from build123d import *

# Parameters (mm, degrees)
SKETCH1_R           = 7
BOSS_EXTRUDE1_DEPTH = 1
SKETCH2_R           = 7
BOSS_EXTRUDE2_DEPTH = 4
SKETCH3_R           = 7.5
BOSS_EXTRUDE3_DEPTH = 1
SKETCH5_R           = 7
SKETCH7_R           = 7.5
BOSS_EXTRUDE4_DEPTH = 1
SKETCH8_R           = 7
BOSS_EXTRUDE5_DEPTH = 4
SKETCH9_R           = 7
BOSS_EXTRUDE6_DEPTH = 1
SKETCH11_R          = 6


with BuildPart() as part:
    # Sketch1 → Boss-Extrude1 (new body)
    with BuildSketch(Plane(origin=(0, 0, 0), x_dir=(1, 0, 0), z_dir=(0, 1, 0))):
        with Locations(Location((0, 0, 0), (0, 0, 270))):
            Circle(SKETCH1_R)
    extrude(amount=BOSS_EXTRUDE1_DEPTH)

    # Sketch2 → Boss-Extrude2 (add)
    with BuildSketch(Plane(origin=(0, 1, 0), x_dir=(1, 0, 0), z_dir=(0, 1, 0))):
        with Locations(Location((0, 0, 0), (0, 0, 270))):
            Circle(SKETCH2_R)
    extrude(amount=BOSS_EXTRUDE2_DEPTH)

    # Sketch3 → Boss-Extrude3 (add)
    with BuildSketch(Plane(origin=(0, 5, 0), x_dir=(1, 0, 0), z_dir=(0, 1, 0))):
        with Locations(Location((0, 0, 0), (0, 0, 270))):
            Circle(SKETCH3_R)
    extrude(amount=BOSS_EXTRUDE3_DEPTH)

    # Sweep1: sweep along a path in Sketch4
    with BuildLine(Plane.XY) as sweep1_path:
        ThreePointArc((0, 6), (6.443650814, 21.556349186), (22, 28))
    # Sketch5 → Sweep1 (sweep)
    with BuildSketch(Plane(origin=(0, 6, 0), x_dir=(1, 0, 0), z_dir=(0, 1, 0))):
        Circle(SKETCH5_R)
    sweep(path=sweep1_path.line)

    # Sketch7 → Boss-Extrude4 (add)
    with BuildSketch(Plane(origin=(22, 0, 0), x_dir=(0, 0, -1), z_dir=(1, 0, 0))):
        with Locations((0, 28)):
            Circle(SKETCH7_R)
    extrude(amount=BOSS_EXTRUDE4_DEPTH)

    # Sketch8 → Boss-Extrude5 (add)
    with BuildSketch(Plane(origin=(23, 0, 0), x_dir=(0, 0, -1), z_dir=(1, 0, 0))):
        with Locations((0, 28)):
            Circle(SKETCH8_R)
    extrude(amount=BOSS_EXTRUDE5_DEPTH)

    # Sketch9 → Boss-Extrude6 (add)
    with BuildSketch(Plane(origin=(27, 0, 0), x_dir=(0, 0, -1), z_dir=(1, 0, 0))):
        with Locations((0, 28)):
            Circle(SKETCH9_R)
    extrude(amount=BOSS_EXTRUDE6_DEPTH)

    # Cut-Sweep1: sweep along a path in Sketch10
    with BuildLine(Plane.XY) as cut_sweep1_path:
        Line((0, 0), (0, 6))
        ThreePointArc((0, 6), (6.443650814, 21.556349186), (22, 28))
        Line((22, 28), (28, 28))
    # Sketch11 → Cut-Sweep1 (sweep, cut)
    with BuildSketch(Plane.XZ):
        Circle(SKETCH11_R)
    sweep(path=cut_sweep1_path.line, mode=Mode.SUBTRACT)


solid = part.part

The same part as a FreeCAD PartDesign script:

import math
import FreeCAD as App
import Part
import Sketcher
Q = App.Units.Quantity

doc = App.newDocument("Part")
body = doc.addObject("PartDesign::Body", "Body")

sketch1 = body.newObject("Sketcher::SketchObject", "Sketch")
sketch1.AttachmentSupport = (doc.getObject("XZ_Plane"), [""])
sketch1.MapMode = "FlatFace"
sketch1.addGeometry(Part.Circle(App.Vector(0, 0, 0), App.Vector(0, 0, 1), 7), False)
sketch1.addConstraint([
    Sketcher.Constraint("Coincident", 0, 3, -1, 1),
    Sketcher.Constraint("Diameter", 0, Q("14 mm")),
])
pad1 = body.newObject("PartDesign::Pad", "Pad")
pad1.Profile = sketch1
pad1.Length = 1
pad1.Reversed = True

sketch2 = body.newObject("Sketcher::SketchObject", "Sketch001")
sketch2.AttachmentSupport = (doc.getObject("XZ_Plane"), [""])
sketch2.MapMode = "FlatFace"
sketch2.AttachmentOffset = App.Placement(App.Vector(0, 0, -1), App.Rotation())
sketch2.addGeometry(Part.Circle(App.Vector(0, 0, 0), App.Vector(0, 0, 1), 7), False)
sketch2.addConstraint([
    Sketcher.Constraint("Coincident", 0, 3, -1, 1),
    Sketcher.Constraint("Diameter", 0, Q("14 mm")),
])
pad2 = body.newObject("PartDesign::Pad", "Pad001")
pad2.Profile = sketch2
pad2.Length = 4
pad2.Reversed = True

sketch3 = body.newObject("Sketcher::SketchObject", "Sketch002")
sketch3.AttachmentSupport = (doc.getObject("XZ_Plane"), [""])
sketch3.MapMode = "FlatFace"
sketch3.AttachmentOffset = App.Placement(App.Vector(0, 0, -5), App.Rotation())
sketch3.addGeometry(Part.Circle(App.Vector(0, 0, 0), App.Vector(0, 0, 1), 7.5), False)
sketch3.addConstraint([
    Sketcher.Constraint("Coincident", 0, 3, -1, 1),
    Sketcher.Constraint("Diameter", 0, Q("15 mm")),
])
pad3 = body.newObject("PartDesign::Pad", "Pad002")
pad3.Profile = sketch3
pad3.Length = 1
pad3.Reversed = True

sketch4 = body.newObject("Sketcher::SketchObject", "Sketch003")
sketch4.AttachmentSupport = (doc.getObject("XZ_Plane"), [""])
sketch4.MapMode = "FlatFace"
sketch4.AttachmentOffset = App.Placement(App.Vector(0, 0, -6), App.Rotation())
sketch4.addGeometry(Part.Circle(App.Vector(0, 0, 0), App.Vector(0, 0, 1), 7), False)
sketch4.addConstraint([
    Sketcher.Constraint("Coincident", 0, 3, -1, 1),
    Sketcher.Constraint("Diameter", 0, Q("14 mm")),
])

sketch5 = body.newObject("Sketcher::SketchObject", "Sketch004")
sketch5.AttachmentSupport = (doc.getObject("XY_Plane"), [""])
sketch5.MapMode = "FlatFace"
sketch5.addGeometry(Part.ArcOfCircle(Part.Circle(App.Vector(22, 6, 0), App.Vector(0, 0, 1), 22), math.radians(90), math.radians(180)), False)
sketch5.addConstraint([
    Sketcher.Constraint("PointOnObject", 0, 2, -2),
    Sketcher.Constraint("Radius", 0, Q("22 mm")),
    Sketcher.Constraint("DistanceY", -1, 1, 0, 3, Q("6 mm")),
    Sketcher.Constraint("DistanceX", -1, 1, 0, 1, Q("22 mm")),
    Sketcher.Constraint("DistanceY", -1, 1, 0, 2, Q("6 mm")),
])
doc.recompute()

additivepipe = body.newObject("PartDesign::AdditivePipe", "AdditivePipe")
additivepipe.Profile = sketch4
additivepipe.Spine = (sketch5, ["Edge1"])

sketch6 = body.newObject("Sketcher::SketchObject", "Sketch005")
sketch6.AttachmentSupport = (doc.getObject("YZ_Plane"), [""])
sketch6.MapMode = "FlatFace"
sketch6.AttachmentOffset = App.Placement(App.Vector(0, 0, 22), App.Rotation())
sketch6.addGeometry(Part.Circle(App.Vector(28, 0, 0), App.Vector(0, 0, 1), 7.5), False)
sketch6.addConstraint([
    Sketcher.Constraint("PointOnObject", 0, 3, -1),
    Sketcher.Constraint("Diameter", 0, Q("15 mm")),
    Sketcher.Constraint("DistanceX", -1, 1, 0, 3, Q("28 mm")),
])
pad4 = body.newObject("PartDesign::Pad", "Pad003")
pad4.Profile = sketch6
pad4.Length = 1

sketch7 = body.newObject("Sketcher::SketchObject", "Sketch006")
sketch7.AttachmentSupport = (doc.getObject("YZ_Plane"), [""])
sketch7.MapMode = "FlatFace"
sketch7.AttachmentOffset = App.Placement(App.Vector(0, 0, 23), App.Rotation())
sketch7.addGeometry(Part.Circle(App.Vector(28, 0, 0), App.Vector(0, 0, 1), 7), False)
sketch7.addConstraint([
    Sketcher.Constraint("PointOnObject", 0, 3, -1),
    Sketcher.Constraint("Diameter", 0, Q("14 mm")),
    Sketcher.Constraint("DistanceX", -1, 1, 0, 3, Q("28 mm")),
])
pad5 = body.newObject("PartDesign::Pad", "Pad004")
pad5.Profile = sketch7
pad5.Length = 4

sketch8 = body.newObject("Sketcher::SketchObject", "Sketch007")
sketch8.AttachmentSupport = (doc.getObject("YZ_Plane"), [""])
sketch8.MapMode = "FlatFace"
sketch8.AttachmentOffset = App.Placement(App.Vector(0, 0, 27), App.Rotation())
sketch8.addGeometry(Part.Circle(App.Vector(28, 0, 0), App.Vector(0, 0, 1), 7), False)
sketch8.addConstraint([
    Sketcher.Constraint("PointOnObject", 0, 3, -1),
    Sketcher.Constraint("Diameter", 0, Q("14 mm")),
    Sketcher.Constraint("DistanceX", -1, 1, 0, 3, Q("28 mm")),
])
pad6 = body.newObject("PartDesign::Pad", "Pad005")
pad6.Profile = sketch8
pad6.Length = 1

sketch9 = body.newObject("Sketcher::SketchObject", "Sketch008")
sketch9.AttachmentSupport = (doc.getObject("XZ_Plane"), [""])
sketch9.MapMode = "FlatFace"
sketch9.addGeometry(Part.Circle(App.Vector(0, 0, 0), App.Vector(0, 0, 1), 6), False)
sketch9.addConstraint([
    Sketcher.Constraint("Coincident", 0, 3, -1, 1),
    Sketcher.Constraint("Diameter", 0, Q("12 mm")),
])

sketch10 = body.newObject("Sketcher::SketchObject", "Sketch009")
sketch10.AttachmentSupport = (doc.getObject("XY_Plane"), [""])
sketch10.MapMode = "FlatFace"
sketch10.addGeometry([
    Part.LineSegment(App.Vector(0, 0, 0), App.Vector(0, 6, 0)),
    Part.ArcOfCircle(Part.Circle(App.Vector(22, 6, 0), App.Vector(0, 0, 1), 22), math.radians(90), math.radians(180)),
    Part.LineSegment(App.Vector(22, 28, 0), App.Vector(28, 28, 0)),
], False)
sketch10.addConstraint([
    Sketcher.Constraint("Tangent", 0, 2, 1, 2),
    Sketcher.Constraint("Tangent", 1, 1, 2, 1),
    Sketcher.Constraint("Vertical", 0),
    Sketcher.Constraint("Horizontal", 2),
    Sketcher.Constraint("Coincident", 0, 1, -1, 1),
    Sketcher.Constraint("Equal", 2, 0),
    Sketcher.Constraint("Radius", 1, Q("22 mm")),
    Sketcher.Constraint("DistanceX", 2, 1, 2, 2, Q("6 mm")),
])
doc.recompute()

subtractivepipe = body.newObject("PartDesign::SubtractivePipe", "SubtractivePipe")
subtractivepipe.Profile = sketch9
subtractivepipe.Spine = (sketch10, ["Edge1", "Edge2", "Edge3"])

doc.recompute()
